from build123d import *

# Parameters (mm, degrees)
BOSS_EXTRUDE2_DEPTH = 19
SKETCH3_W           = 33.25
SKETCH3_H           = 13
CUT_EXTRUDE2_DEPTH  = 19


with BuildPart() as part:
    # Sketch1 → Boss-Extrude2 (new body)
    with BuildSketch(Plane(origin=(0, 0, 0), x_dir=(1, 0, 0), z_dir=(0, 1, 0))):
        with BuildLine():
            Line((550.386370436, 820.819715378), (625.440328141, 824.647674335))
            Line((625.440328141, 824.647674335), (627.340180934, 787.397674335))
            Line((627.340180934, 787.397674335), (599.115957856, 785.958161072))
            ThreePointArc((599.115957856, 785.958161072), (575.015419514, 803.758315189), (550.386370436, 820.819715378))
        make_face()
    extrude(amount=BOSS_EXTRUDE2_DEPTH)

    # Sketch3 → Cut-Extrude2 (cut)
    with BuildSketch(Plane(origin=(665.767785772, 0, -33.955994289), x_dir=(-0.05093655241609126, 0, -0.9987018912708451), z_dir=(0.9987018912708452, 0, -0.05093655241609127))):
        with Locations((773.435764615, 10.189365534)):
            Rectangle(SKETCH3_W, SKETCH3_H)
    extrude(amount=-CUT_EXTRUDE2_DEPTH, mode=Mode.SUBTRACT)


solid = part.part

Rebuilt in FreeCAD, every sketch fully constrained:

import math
import FreeCAD as App
import Part
import Sketcher

V = App.Vector


def add_polygon(sketch, points):
    """Adds a closed chain of lines whose ends are joined by coincident constraints."""
    first, n = sketch.GeometryCount, len(points)
    for a, b in zip(points, points[1:] + points[:1]):
        sketch.addGeometry(Part.LineSegment(App.Vector(*a, 0), App.Vector(*b, 0)), False)
    for i in range(n):
        sketch.addConstraint(Sketcher.Constraint("Coincident", first + i, 2, first + (i + 1) % n, 1))

doc = App.newDocument("Part")
params = doc.addObject("Spreadsheet::Sheet", "Params")
for row, (alias, value) in enumerate([
    ("pad1_length", "19 mm"),
    ("sketch2_height", "13 mm"),
    ("sketch2_width", "33.25 mm"),
    ("pocket1_length", "19 mm"),
], start=1):
    params.set(f"A{row}", alias)
    params.set(f"B{row}", "=" + value)
    params.setAlias(f"B{row}", alias)

body = doc.addObject("PartDesign::Body", "Body")

# Sketch on XZ plane
sketch1 = body.newObject("Sketcher::SketchObject", "Sketch")
sketch1.AttachmentSupport = (doc.getObject("XZ_Plane"), [""])
sketch1.MapMode = "FlatFace"
sketch1.addGeometry([
    Part.LineSegment(V(625.440328, -824.647674, 0), V(550.38637, -820.819715, 0)),
    Part.ArcOfCircle(Part.Circle(V(0, 0, 0), V(0, 0, 1), 988.26624), math.radians(-56.156859), math.radians(-52.682646)),
    Part.LineSegment(V(599.115958, -785.958161, 0), V(627.340181, -787.397674, 0)),
    Part.LineSegment(V(627.340181, -787.397674, 0), V(625.440328, -824.647674, 0)),
], False)
sketch1.addConstraint([
    Sketcher.Constraint("Coincident", 0, 2, 1, 1),
    Sketcher.Constraint("Coincident", 1, 2, 2, 1),
    Sketcher.Constraint("Coincident", 2, 2, 3, 1),
    Sketcher.Constraint("Coincident", 3, 2, 0, 1),
    Sketcher.Constraint("Coincident", 1, 3, -1, 1),
    Sketcher.Constraint("Parallel", 0, 2),
    Sketcher.Constraint("Perpendicular", 2, 3),
    Sketcher.Constraint("Radius", 1, 988.26624),
    Sketcher.Constraint("DistanceY", 3, 2, 2, 2, 37.25),
    Sketcher.Constraint("Distance", 2, 28.260909),
    Sketcher.Constraint("DistanceX", -1, 1, 0, 2, 550.38637),
    Sketcher.Constraint("DistanceX", -1, 1, 2, 2, 627.340181),
])
pad1 = body.newObject("PartDesign::Pad", "Pad")
pad1.Profile = sketch1
pad1.setExpression("Length", "Params.pad1_length")
pad1.Reversed = True

# Sketch on an angled plane
sketch2 = body.newObject("Sketcher::SketchObject", "Sketch001")
sketch2.Placement = App.Placement(V(665.767786, 0, -33.955994), App.Rotation(V(-0.050936552, 0, -0.998701891), V(0, 0.999999999, 0), V(0.998701891, 0, -0.050936552), "ZXY"))
add_polygon(sketch2, [(756.810764, 16.689366), (756.810764, 3.689366), (790.060764, 3.689366), (790.060764, 16.689366)])  # lines 0-3
sketch2.addConstraint([
    Sketcher.Constraint("Vertical", 0),
    Sketcher.Constraint("Horizontal", 1),
    Sketcher.Constraint("Vertical", 2),
    Sketcher.Constraint("Horizontal", 3),
    Sketcher.Constraint("DistanceY", 0, 2, 0, 1, 13.0),
    Sketcher.Constraint("DistanceX", 1, 1, 1, 2, 33.25),
    Sketcher.Constraint("DistanceX", -1, 1, 0, 2, 756.810764),
    Sketcher.Constraint("DistanceY", -1, 1, 0, 2, 3.689366),
])
sketch2.setExpression("Constraints[8]", "Params.sketch2_height")
sketch2.setExpression("Constraints[9]", "Params.sketch2_width")
pocket1 = body.newObject("PartDesign::Pocket", "Pocket")
pocket1.Profile = sketch2
pocket1.setExpression("Length", "Params.pocket1_length")

doc.recompute()
